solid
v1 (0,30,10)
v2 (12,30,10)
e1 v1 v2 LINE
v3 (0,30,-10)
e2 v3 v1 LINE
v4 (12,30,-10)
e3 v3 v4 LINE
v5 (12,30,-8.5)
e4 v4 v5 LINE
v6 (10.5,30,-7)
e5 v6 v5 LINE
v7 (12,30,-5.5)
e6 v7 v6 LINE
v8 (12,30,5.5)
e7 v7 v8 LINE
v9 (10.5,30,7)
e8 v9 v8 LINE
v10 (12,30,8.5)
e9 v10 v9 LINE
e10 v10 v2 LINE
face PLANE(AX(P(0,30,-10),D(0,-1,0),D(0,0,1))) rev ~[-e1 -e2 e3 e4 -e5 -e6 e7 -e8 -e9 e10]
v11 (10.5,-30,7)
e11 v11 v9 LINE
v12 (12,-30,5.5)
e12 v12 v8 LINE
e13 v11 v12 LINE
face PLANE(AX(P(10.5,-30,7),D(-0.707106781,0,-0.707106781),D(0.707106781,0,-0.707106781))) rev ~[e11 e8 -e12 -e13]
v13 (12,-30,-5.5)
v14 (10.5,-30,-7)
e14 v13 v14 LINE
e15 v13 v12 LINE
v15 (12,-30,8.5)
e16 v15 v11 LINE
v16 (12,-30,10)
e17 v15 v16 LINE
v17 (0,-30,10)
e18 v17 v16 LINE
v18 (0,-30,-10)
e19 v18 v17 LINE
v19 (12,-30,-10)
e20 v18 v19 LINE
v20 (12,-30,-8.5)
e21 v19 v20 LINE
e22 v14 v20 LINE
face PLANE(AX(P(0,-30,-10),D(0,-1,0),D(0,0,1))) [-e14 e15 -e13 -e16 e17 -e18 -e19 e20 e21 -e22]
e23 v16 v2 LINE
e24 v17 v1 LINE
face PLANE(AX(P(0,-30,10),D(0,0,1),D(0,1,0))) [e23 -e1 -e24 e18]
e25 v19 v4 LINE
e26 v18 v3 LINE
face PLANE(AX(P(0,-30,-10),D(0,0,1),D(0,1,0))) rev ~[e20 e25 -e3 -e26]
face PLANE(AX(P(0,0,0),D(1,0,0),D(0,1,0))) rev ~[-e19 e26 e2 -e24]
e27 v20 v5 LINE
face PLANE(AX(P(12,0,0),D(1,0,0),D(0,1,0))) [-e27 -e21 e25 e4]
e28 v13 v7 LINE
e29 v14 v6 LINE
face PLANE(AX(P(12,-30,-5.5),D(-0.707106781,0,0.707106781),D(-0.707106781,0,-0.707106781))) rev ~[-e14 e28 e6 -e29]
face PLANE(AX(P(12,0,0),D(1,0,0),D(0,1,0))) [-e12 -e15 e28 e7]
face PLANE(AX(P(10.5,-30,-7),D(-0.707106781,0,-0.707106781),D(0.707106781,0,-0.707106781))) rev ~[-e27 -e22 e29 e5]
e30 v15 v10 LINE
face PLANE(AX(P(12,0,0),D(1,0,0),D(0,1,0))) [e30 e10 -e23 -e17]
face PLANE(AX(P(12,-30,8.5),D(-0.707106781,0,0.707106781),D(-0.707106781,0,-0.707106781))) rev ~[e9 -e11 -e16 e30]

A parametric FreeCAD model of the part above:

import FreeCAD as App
import Part
import Sketcher
from FreeCAD import Vector


def add_polygon(sketch, points):
    """Adds a closed chain of lines whose ends are joined by coincident constraints."""
    first, n = sketch.GeometryCount, len(points)
    for a, b in zip(points, points[1:] + points[:1]):
        sketch.addGeometry(Part.LineSegment(App.Vector(*a, 0), App.Vector(*b, 0)), False)
    for i in range(n):
        sketch.addConstraint(Sketcher.Constraint("Coincident", first + i, 2, first + (i + 1) % n, 1))

doc = App.newDocument("Part")
params = doc.addObject("Spreadsheet::Sheet", "Params")
for row, (alias, value) in enumerate([
    ("sketch1_width", "60 mm"),
    ("sketch1_height", "20 mm"),
    ("pad1_length", "12 mm"),
    ("sketch2_height", "3 mm"),
], start=1):
    params.set(f"A{row}", alias)
    params.set(f"B{row}", "=" + value)
    params.setAlias(f"B{row}", alias)

body = doc.addObject("PartDesign::Body", "Body")

# Sketch on YZ plane
sketch1 = doc.addObject("Sketcher::SketchObject", "Sketch")
body.addObject(sketch1)
sketch1.AttachmentSupport = (doc.YZ_Plane, [""])
sketch1.MapMode = "FlatFace"
add_polygon(sketch1, [(-30, 10), (-30, -10), (30, -10), (30, 10)])  # lines 0-3
sketch1.addConstraint(Sketcher.Constraint("Vertical", 0))
sketch1.addConstraint(Sketcher.Constraint("Horizontal", 1))
sketch1.addConstraint(Sketcher.Constraint("Vertical", 2))
sketch1.addConstraint(Sketcher.Constraint("Horizontal", 3))
sketch1.addConstraint(Sketcher.Constraint("Symmetric", 0, 2, 2, 2, -1, 1))
sketch1.addConstraint(Sketcher.Constraint("DistanceX", 1, 1, 1, 2, 60.0))
sketch1.addConstraint(Sketcher.Constraint("DistanceY", 0, 2, 0, 1, 20.0))
sketch1.setExpression("Constraints[9]", "Params.sketch1_width")
sketch1.setExpression("Constraints[10]", "Params.sketch1_height")
pad1 = doc.addObject("PartDesign::Pad", "Pad")
body.addObject(pad1)
pad1.Profile = sketch1
pad1.setExpression("Length", "Params.pad1_length")

# Sketch on XZ plane
sketch2 = doc.addObject("Sketcher::SketchObject", "Sketch001")
body.addObject(sketch2)
sketch2.AttachmentSupport = (doc.XZ_Plane, [""])
sketch2.MapMode = "FlatFace"
sketch2.AttachmentOffset = App.Placement(Vector(0, 0, 30), App.Rotation())
add_polygon(sketch2, [(12, 8.5), (10.5, 7), (12, 5.5)])  # lines 0-2
add_polygon(sketch2, [(12, -8.5), (12, -5.5), (10.5, -7)])  # lines 3-5
sketch2.addConstraint(Sketcher.Constraint("Vertical", 2))
sketch2.addConstraint(Sketcher.Constraint("Vertical", 3))
sketch2.addConstraint(Sketcher.Constraint("Symmetric", 1, 2, 3, 2, -1))
sketch2.addConstraint(Sketcher.Constraint("Symmetric", 0, 2, 4, 2, -1))
sketch2.addConstraint(Sketcher.Constraint("Perpendicular", 0, 1))
sketch2.addConstraint(Sketcher.Constraint("Perpendicular", 1, 4))
sketch2.addConstraint(Sketcher.Constraint("Perpendicular", 4, 5))
sketch2.addConstraint(Sketcher.Constraint("DistanceY", 2, 1, 2, 2, 3.0))
sketch2.addConstraint(Sketcher.Constraint("DistanceY", -1, 1, 0, 2, 7.0))
sketch2.addConstraint(Sketcher.Constraint("DistanceX", -1, 1, 1, 2, 12.0))
sketch2.setExpression("Constraints[13]", "Params.sketch2_height")
pocket1 = doc.addObject("PartDesign::Pocket", "Pocket")
body.addObject(pocket1)
pocket1.Profile = sketch2
pocket1.Type = "ThroughAll"

doc.recompute()
